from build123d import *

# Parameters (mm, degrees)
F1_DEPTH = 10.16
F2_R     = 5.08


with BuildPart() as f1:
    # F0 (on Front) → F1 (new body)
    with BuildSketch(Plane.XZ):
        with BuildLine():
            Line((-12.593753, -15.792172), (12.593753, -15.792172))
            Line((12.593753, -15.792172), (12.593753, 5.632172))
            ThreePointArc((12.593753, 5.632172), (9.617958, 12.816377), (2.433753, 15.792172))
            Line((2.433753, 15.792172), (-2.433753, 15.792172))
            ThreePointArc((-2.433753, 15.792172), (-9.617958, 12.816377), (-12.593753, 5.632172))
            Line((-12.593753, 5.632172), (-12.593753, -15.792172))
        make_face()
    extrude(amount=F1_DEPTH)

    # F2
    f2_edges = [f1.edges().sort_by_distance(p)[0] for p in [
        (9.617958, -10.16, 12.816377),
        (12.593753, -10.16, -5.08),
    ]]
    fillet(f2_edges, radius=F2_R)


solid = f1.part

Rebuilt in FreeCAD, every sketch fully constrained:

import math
import FreeCAD as App
import Part
import Sketcher
from FreeCAD import Vector
Q = App.Units.Quantity


def edges_at(feature, points):
    """Names of the edges that pass closest to the given points."""
    edges = feature.Shape.Edges
    near = lambda p: min(range(len(edges)), key=lambda i: edges[i].distToShape(Part.Vertex(*p))[0])
    return sorted({f"Edge{near(p) + 1}" for p in points})

doc = App.newDocument("Part")
body = doc.addObject("PartDesign::Body", "Body")

sketch1 = doc.addObject("Sketcher::SketchObject", "Sketch")
body.addObject(sketch1)
sketch1.AttachmentSupport = (doc.XZ_Plane, [""])
sketch1.MapMode = "FlatFace"
sketch1.addGeometry([
    Part.LineSegment(Vector(-12.6, -15.8, 0), Vector(12.6, -15.8, 0)),
    Part.LineSegment(Vector(12.6, -15.8, 0), Vector(12.6, 5.6, 0)),
    Part.ArcOfCircle(Part.Circle(Vector(2.4, 5.6, 0), Vector(0, 0, 1), 10.2), math.radians(0), math.radians(90)),
    Part.LineSegment(Vector(2.4, 15.8, 0), Vector(-2.4, 15.8, 0)),
    Part.ArcOfCircle(Part.Circle(Vector(-2.4, 5.6, 0), Vector(0, 0, 1), 10.2), math.radians(90), math.radians(180)),
    Part.LineSegment(Vector(-12.6, 5.6, 0), Vector(-12.6, -15.8, 0)),
], False)
sketch1.addConstraint([
    Sketcher.Constraint("Coincident", 0, 2, 1, 1),
    Sketcher.Constraint("Tangent", 1, 2, 2, 1),
    Sketcher.Constraint("Tangent", 2, 2, 3, 1),
    Sketcher.Constraint("Tangent", 3, 2, 4, 1),
    Sketcher.Constraint("Tangent", 4, 2, 5, 1),
    Sketcher.Constraint("Coincident", 5, 2, 0, 1),
    Sketcher.Constraint("Horizontal", 0),
    Sketcher.Constraint("Vertical", 1),
    Sketcher.Constraint("Horizontal", 3),
    Sketcher.Constraint("Vertical", 5),
    Sketcher.Constraint("Equal", 2, 4),
    Sketcher.Constraint("Radius", 2, Q("0.4 in")),
    Sketcher.Constraint("DistanceX", 0, 1, 0, 2, Q("25.187506 mm")),
    Sketcher.Constraint("DistanceY", 1, 1, 1, 2, Q("21.424344 mm")),
    Sketcher.Constraint("DistanceY", -1, 1, 1, 2, Q("5.632172 mm")),
    Sketcher.Constraint("DistanceX", -1, 1, 2, 3, Q("2.433753 mm")),
])
pad1 = doc.addObject("PartDesign::Pad", "Pad")
body.addObject(pad1)
pad1.Profile = sketch1
pad1.Length = Q("0.4 in")
doc.recompute()

fillet = doc.addObject("PartDesign::Fillet", "Fillet")
body.addObject(fillet)
fillet.Base = (pad1, edges_at(pad1, [(9.618, -10.16, 12.816), (12.594, -10.16, -5.08)]))
fillet.Radius = Q("0.2 in")

doc.recompute()
